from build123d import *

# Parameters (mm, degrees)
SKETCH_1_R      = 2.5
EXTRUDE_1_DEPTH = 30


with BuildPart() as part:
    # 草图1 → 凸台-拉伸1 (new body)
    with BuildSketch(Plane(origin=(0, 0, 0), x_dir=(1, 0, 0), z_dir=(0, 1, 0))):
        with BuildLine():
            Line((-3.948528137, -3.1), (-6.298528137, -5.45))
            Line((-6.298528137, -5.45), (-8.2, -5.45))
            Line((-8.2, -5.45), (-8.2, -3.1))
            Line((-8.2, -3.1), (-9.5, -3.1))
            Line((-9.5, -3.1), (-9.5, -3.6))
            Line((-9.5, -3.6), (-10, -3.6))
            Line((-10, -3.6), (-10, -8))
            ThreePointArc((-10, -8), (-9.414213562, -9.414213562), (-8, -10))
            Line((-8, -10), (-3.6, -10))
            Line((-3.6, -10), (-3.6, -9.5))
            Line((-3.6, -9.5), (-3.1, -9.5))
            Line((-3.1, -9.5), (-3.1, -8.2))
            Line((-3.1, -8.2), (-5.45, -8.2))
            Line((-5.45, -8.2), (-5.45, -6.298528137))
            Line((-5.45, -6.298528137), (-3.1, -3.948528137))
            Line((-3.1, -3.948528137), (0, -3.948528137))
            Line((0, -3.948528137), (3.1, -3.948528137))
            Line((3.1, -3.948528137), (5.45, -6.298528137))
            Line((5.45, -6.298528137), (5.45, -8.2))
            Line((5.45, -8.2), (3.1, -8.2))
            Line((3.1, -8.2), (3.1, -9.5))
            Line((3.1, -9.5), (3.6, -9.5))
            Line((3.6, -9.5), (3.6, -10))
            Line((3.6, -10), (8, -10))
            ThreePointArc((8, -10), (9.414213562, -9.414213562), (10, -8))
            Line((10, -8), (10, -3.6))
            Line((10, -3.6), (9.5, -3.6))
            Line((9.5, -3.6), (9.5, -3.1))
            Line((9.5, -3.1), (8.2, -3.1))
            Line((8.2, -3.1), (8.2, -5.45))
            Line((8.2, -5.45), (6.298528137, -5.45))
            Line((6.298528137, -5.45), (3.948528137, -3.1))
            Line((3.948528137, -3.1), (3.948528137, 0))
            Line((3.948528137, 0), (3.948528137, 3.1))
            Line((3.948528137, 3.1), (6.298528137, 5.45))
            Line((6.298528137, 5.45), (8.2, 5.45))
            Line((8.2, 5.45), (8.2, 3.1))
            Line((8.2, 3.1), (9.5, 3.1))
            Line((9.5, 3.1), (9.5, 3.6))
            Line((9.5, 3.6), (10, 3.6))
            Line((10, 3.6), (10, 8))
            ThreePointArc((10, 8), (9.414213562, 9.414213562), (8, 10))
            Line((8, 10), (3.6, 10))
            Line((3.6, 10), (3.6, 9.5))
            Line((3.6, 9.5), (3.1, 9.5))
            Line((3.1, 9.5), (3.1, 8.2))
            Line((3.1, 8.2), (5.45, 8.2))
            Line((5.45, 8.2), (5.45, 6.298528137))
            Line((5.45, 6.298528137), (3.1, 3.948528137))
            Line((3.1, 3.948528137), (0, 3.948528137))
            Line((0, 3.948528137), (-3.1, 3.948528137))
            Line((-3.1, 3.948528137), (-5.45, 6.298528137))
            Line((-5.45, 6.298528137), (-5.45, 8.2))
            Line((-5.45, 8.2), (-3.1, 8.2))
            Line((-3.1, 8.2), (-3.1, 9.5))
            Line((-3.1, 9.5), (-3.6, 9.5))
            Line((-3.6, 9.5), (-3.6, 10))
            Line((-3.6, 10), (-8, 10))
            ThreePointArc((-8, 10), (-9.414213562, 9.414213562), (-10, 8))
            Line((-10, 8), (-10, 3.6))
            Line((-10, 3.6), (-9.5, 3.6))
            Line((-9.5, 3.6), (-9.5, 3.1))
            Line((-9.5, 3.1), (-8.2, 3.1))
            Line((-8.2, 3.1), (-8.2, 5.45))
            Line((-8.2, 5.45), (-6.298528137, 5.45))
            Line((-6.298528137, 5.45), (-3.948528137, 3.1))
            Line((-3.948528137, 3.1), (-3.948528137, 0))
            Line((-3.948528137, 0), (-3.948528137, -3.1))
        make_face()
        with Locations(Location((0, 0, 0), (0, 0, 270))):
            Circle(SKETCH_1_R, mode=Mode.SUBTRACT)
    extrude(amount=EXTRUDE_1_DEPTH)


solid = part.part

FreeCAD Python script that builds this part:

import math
import FreeCAD as App
import Part
import Sketcher

doc = App.newDocument("Part")
params = doc.addObject("Spreadsheet::Sheet", "Params")
for row, (alias, value) in enumerate([
    ("sketch1_diameter", "5 mm"),
    ("sketch1_radius", "2 mm"),
    ("sketch1_width", "1.3 mm"),
    ("sketch1_width2", "0.5 mm"),
    ("sketch1_width3", "4.4 mm"),
    ("pad1_length", "30 mm"),
], start=1):
    params.set(f"A{row}", alias)
    params.set(f"B{row}", "=" + value)
    params.setAlias(f"B{row}", alias)

body = doc.addObject("PartDesign::Body", "Body")

# Sketch on XZ plane
sketch1 = body.newObject("Sketcher::SketchObject", "Sketch")
sketch1.AttachmentSupport = (doc.getObject("XZ_Plane"), [""])
sketch1.MapMode = "FlatFace"
sketch1.addGeometry(Part.LineSegment(App.Vector(-3.9, 3.1, 0), App.Vector(-6.3, 5.5, 0)), False)
sketch1.addGeometry(Part.LineSegment(App.Vector(-6.3, 5.5, 0), App.Vector(-8.2, 5.5, 0)), False)
sketch1.addGeometry(Part.LineSegment(App.Vector(-8.2, 5.5, 0), App.Vector(-8.2, 3.1, 0)), False)
sketch1.addGeometry(Part.LineSegment(App.Vector(-8.2, 3.1, 0), App.Vector(-9.5, 3.1, 0)), False)
sketch1.addGeometry(Part.LineSegment(App.Vector(-9.5, 3.1, 0), App.Vector(-9.5, 3.6, 0)), False)
sketch1.addGeometry(Part.LineSegment(App.Vector(-9.5, 3.6, 0), App.Vector(-10, 3.6, 0)), False)
sketch1.addGeometry(Part.LineSegment(App.Vector(-10, 3.6, 0), App.Vector(-10, 8, 0)), False)
sketch1.addGeometry(Part.ArcOfCircle(Part.Circle(App.Vector(-8, 8, 0), App.Vector(0, 0, 1), 2), math.radians(90), math.radians(180)), False)
sketch1.addGeometry(Part.LineSegment(App.Vector(-8, 10, 0), App.Vector(-3.6, 10, 0)), False)
sketch1.addGeometry(Part.LineSegment(App.Vector(-3.6, 10, 0), App.Vector(-3.6, 9.5, 0)), False)
sketch1.addGeometry(Part.LineSegment(App.Vector(-3.6, 9.5, 0), App.Vector(-3.1, 9.5, 0)), False)
sketch1.addGeometry(Part.LineSegment(App.Vector(-3.1, 9.5, 0), App.Vector(-3.1, 8.2, 0)), False)
sketch1.addGeometry(Part.LineSegment(App.Vector(-3.1, 8.2, 0), App.Vector(-5.5, 8.2, 0)), False)
sketch1.addGeometry(Part.LineSegment(App.Vector(-5.5, 8.2, 0), App.Vector(-5.5, 6.3, 0)), False)
sketch1.addGeometry(Part.LineSegment(App.Vector(-5.5, 6.3, 0), App.Vector(-3.1, 3.9, 0)), False)
sketch1.addGeometry(Part.LineSegment(App.Vector(-3.1, 3.9, 0), App.Vector(3.1, 3.9, 0)), False)
sketch1.addGeometry(Part.LineSegment(App.Vector(3.1, 3.9, 0), App.Vector(5.5, 6.3, 0)), False)
sketch1.addGeometry(Part.LineSegment(App.Vector(5.5, 6.3, 0), App.Vector(5.5, 8.2, 0)), False)
sketch1.addGeometry(Part.LineSegment(App.Vector(5.5, 8.2, 0), App.Vector(3.1, 8.2, 0)), False)
sketch1.addGeometry(Part.LineSegment(App.Vector(3.1, 8.2, 0), App.Vector(3.1, 9.5, 0)), False)
sketch1.addGeometry(Part.LineSegment(App.Vector(3.1, 9.5, 0), App.Vector(3.6, 9.5, 0)), False)
sketch1.addGeometry(Part.LineSegment(App.Vector(3.6, 9.5, 0), App.Vector(3.6, 10, 0)), False)
sketch1.addGeometry(Part.LineSegment(App.Vector(3.6, 10, 0), App.Vector(8, 10, 0)), False)
sketch1.addGeometry(Part.ArcOfCircle(Part.Circle(App.Vector(8, 8, 0), App.Vector(0, 0, 1), 2), math.radians(0), math.radians(90)), False)
sketch1.addGeometry(Part.LineSegment(App.Vector(10, 8, 0), App.Vector(10, 3.6, 0)), False)
sketch1.addGeometry(Part.LineSegment(App.Vector(10, 3.6, 0), App.Vector(9.5, 3.6, 0)), False)
sketch1.addGeometry(Part.LineSegment(App.Vector(9.5, 3.6, 0), App.Vector(9.5, 3.1, 0)), False)
sketch1.addGeometry(Part.LineSegment(App.Vector(9.5, 3.1, 0), App.Vector(8.2, 3.1, 0)), False)
sketch1.addGeometry(Part.LineSegment(App.Vector(8.2, 3.1, 0), App.Vector(8.2, 5.5, 0)), False)
sketch1.addGeometry(Part.LineSegment(App.Vector(8.2, 5.5, 0), App.Vector(6.3, 5.5, 0)), False)
sketch1.addGeometry(Part.LineSegment(App.Vector(6.3, 5.5, 0), App.Vector(3.9, 3.1, 0)), False)
sketch1.addGeometry(Part.LineSegment(App.Vector(3.9, 3.1, 0), App.Vector(3.9, -3.1, 0)), False)
sketch1.addGeometry(Part.LineSegment(App.Vector(3.9, -3.1, 0), App.Vector(6.3, -5.5, 0)), False)
sketch1.addGeometry(Part.LineSegment(App.Vector(6.3, -5.5, 0), App.Vector(8.2, -5.5, 0)), False)
sketch1.addGeometry(Part.LineSegment(App.Vector(8.2, -5.5, 0), App.Vector(8.2, -3.1, 0)), False)
sketch1.addGeometry(Part.LineSegment(App.Vector(8.2, -3.1, 0), App.Vector(9.5, -3.1, 0)), False)
sketch1.addGeometry(Part.LineSegment(App.Vector(9.5, -3.1, 0), App.Vector(9.5, -3.6, 0)), False)
sketch1.addGeometry(Part.LineSegment(App.Vector(9.5, -3.6, 0), App.Vector(10, -3.6, 0)), False)
sketch1.addGeometry(Part.LineSegment(App.Vector(10, -3.6, 0), App.Vector(10, -8, 0)), False)
sketch1.addGeometry(Part.ArcOfCircle(Part.Circle(App.Vector(8, -8, 0), App.Vector(0, 0, 1), 2), math.radians(-90), math.radians(0)), False)
sketch1.addGeometry(Part.LineSegment(App.Vector(8, -10, 0), App.Vector(3.6, -10, 0)), False)
sketch1.addGeometry(Part.LineSegment(App.Vector(3.6, -10, 0), App.Vector(3.6, -9.5, 0)), False)
sketch1.addGeometry(Part.LineSegment(App.Vector(3.6, -9.5, 0), App.Vector(3.1, -9.5, 0)), False)
sketch1.addGeometry(Part.LineSegment(App.Vector(3.1, -9.5, 0), App.Vector(3.1, -8.2, 0)), False)
sketch1.addGeometry(Part.LineSegment(App.Vector(3.1, -8.2, 0), App.Vector(5.5, -8.2, 0)), False)
sketch1.addGeometry(Part.LineSegment(App.Vector(5.5, -8.2, 0), App.Vector(5.5, -6.3, 0)), False)
sketch1.addGeometry(Part.LineSegment(App.Vector(5.5, -6.3, 0), App.Vector(3.1, -3.9, 0)), False)
sketch1.addGeometry(Part.LineSegment(App.Vector(3.1, -3.9, 0), App.Vector(-3.1, -3.9, 0)), False)
sketch1.addGeometry(Part.LineSegment(App.Vector(-3.1, -3.9, 0), App.Vector(-5.5, -6.3, 0)), False)
sketch1.addGeometry(Part.LineSegment(App.Vector(-5.5, -6.3, 0), App.Vector(-5.5, -8.2, 0)), False)
sketch1.addGeometry(Part.LineSegment(App.Vector(-5.5, -8.2, 0), App.Vector(-3.1, -8.2, 0)), False)
sketch1.addGeometry(Part.LineSegment(App.Vector(-3.1, -8.2, 0), App.Vector(-3.1, -9.5, 0)), False)
sketch1.addGeometry(Part.LineSegment(App.Vector(-3.1, -9.5, 0), App.Vector(-3.6, -9.5, 0)), False)
sketch1.addGeometry(Part.LineSegment(App.Vector(-3.6, -9.5, 0), App.Vector(-3.6, -10, 0)), False)
sketch1.addGeometry(Part.LineSegment(App.Vector(-3.6, -10, 0), App.Vector(-8, -10, 0)), False)
sketch1.addGeometry(Part.ArcOfCircle(Part.Circle(App.Vector(-8, -8, 0), App.Vector(0, 0, 1), 2), math.radians(-180), math.radians(-90)), False)
sketch1.addGeometry(Part.LineSegment(App.Vector(-10, -8, 0), App.Vector(-10, -3.6, 0)), False)
sketch1.addGeometry(Part.LineSegment(App.Vector(-10, -3.6, 0), App.Vector(-9.5, -3.6, 0)), False)
sketch1.addGeometry(Part.LineSegment(App.Vector(-9.5, -3.6, 0), App.Vector(-9.5, -3.1, 0)), False)
sketch1.addGeometry(Part.LineSegment(App.Vector(-9.5, -3.1, 0), App.Vector(-8.2, -3.1, 0)), False)
sketch1.addGeometry(Part.LineSegment(App.Vector(-8.2, -3.1, 0), App.Vector(-8.2, -5.5, 0)), False)
sketch1.addGeometry(Part.LineSegment(App.Vector(-8.2, -5.5, 0), App.Vector(-6.3, -5.5, 0)), False)
sketch1.addGeometry(Part.LineSegment(App.Vector(-6.3, -5.5, 0), App.Vector(-3.9, -3.1, 0)), False)
sketch1.addGeometry(Part.LineSegment(App.Vector(-3.9, -3.1, 0), App.Vector(-3.9, 3.1, 0)), False)
sketch1.addGeometry(Part.Circle(App.Vector(0, 0, 0), App.Vector(0, 0, 1), 2.5), False)
sketch1.addConstraint(Sketcher.Constraint("Coincident", 0, 2, 1, 1))
sketch1.addConstraint(Sketcher.Constraint("Coincident", 1, 2, 2, 1))
sketch1.addConstraint(Sketcher.Constraint("Coincident", 2, 2, 3, 1))
sketch1.addConstraint(Sketcher.Constraint("Coincident", 3, 2, 4, 1))
sketch1.addConstraint(Sketcher.Constraint("Coincident", 4, 2, 5, 1))
sketch1.addConstraint(Sketcher.Constraint("Coincident", 5, 2, 6, 1))
sketch1.addConstraint(Sketcher.Constraint("Tangent", 6, 2, 7, 2))
sketch1.addConstraint(Sketcher.Constraint("Tangent", 7, 1, 8, 1))
sketch1.addConstraint(Sketcher.Constraint("Coincident", 8, 2, 9, 1))
sketch1.addConstraint(Sketcher.Constraint("Coincident", 9, 2, 10, 1))
sketch1.addConstraint(Sketcher.Constraint("Coincident", 10, 2, 11, 1))
sketch1.addConstraint(Sketcher.Constraint("Coincident", 11, 2, 12, 1))
sketch1.addConstraint(Sketcher.Constraint("Coincident", 12, 2, 13, 1))
sketch1.addConstraint(Sketcher.Constraint("Coincident", 13, 2, 14, 1))
sketch1.addConstraint(Sketcher.Constraint("Coincident", 14, 2, 15, 1))
sketch1.addConstraint(Sketcher.Constraint("Coincident", 15, 2, 16, 1))
sketch1.addConstraint(Sketcher.Constraint("Coincident", 16, 2, 17, 1))
sketch1.addConstraint(Sketcher.Constraint("Coincident", 17, 2, 18, 1))
sketch1.addConstraint(Sketcher.Constraint("Coincident", 18, 2, 19, 1))
sketch1.addConstraint(Sketcher.Constraint("Coincident", 19, 2, 20, 1))
sketch1.addConstraint(Sketcher.Constraint("Coincident", 20, 2, 21, 1))
sketch1.addConstraint(Sketcher.Constraint("Coincident", 21, 2, 22, 1))
sketch1.addConstraint(Sketcher.Constraint("Tangent", 22, 2, 23, 2))
sketch1.addConstraint(Sketcher.Constraint("Tangent", 23, 1, 24, 1))
sketch1.addConstraint(Sketcher.Constraint("Coincident", 24, 2, 25, 1))
sketch1.addConstraint(Sketcher.Constraint("Coincident", 25, 2, 26, 1))
sketch1.addConstraint(Sketcher.Constraint("Coincident", 26, 2, 27, 1))
sketch1.addConstraint(Sketcher.Constraint("Coincident", 27, 2, 28, 1))
sketch1.addConstraint(Sketcher.Constraint("Coincident", 28, 2, 29, 1))
sketch1.addConstraint(Sketcher.Constraint("Coincident", 29, 2, 30, 1))
sketch1.addConstraint(Sketcher.Constraint("Coincident", 30, 2, 31, 1))
sketch1.addConstraint(Sketcher.Constraint("Coincident", 31, 2, 32, 1))
sketch1.addConstraint(Sketcher.Constraint("Coincident", 32, 2, 33, 1))
sketch1.addConstraint(Sketcher.Constraint("Coincident", 33, 2, 34, 1))
sketch1.addConstraint(Sketcher.Constraint("Coincident", 34, 2, 35, 1))
sketch1.addConstraint(Sketcher.Constraint("Coincident", 35, 2, 36, 1))
sketch1.addConstraint(Sketcher.Constraint("Coincident", 36, 2, 37, 1))
sketch1.addConstraint(Sketcher.Constraint("Coincident", 37, 2, 38, 1))
sketch1.addConstraint(Sketcher.Constraint("Tangent", 38, 2, 39, 2))
sketch1.addConstraint(Sketcher.Constraint("Tangent", 39, 1, 40, 1))
sketch1.addConstraint(Sketcher.Constraint("Coincident", 40, 2, 41, 1))
sketch1.addConstraint(Sketcher.Constraint("Coincident", 41, 2, 42, 1))
sketch1.addConstraint(Sketcher.Constraint("Coincident", 42, 2, 43, 1))
sketch1.addConstraint(Sketcher.Constraint("Coincident", 43, 2, 44, 1))
sketch1.addConstraint(Sketcher.Constraint("Coincident", 44, 2, 45, 1))
sketch1.addConstraint(Sketcher.Constraint("Coincident", 45, 2, 46, 1))
sketch1.addConstraint(Sketcher.Constraint("Coincident", 46, 2, 47, 1))
sketch1.addConstraint(Sketcher.Constraint("Coincident", 47, 2, 48, 1))
sketch1.addConstraint(Sketcher.Constraint("Coincident", 48, 2, 49, 1))
sketch1.addConstraint(Sketcher.Constraint("Coincident", 49, 2, 50, 1))
sketch1.addConstraint(Sketcher.Constraint("Coincident", 50, 2, 51, 1))
sketch1.addConstraint(Sketcher.Constraint("Coincident", 51, 2, 52, 1))
sketch1.addConstraint(Sketcher.Constraint("Coincident", 52, 2, 53, 1))
sketch1.addConstraint(Sketcher.Constraint("Coincident", 53, 2, 54, 1))
sketch1.addConstraint(Sketcher.Constraint("Tangent", 54, 2, 55, 2))
sketch1.addConstraint(Sketcher.Constraint("Tangent", 55, 1, 56, 1))
sketch1.addConstraint(Sketcher.Constraint("Coincident", 56, 2, 57, 1))
sketch1.addConstraint(Sketcher.Constraint("Coincident", 57, 2, 58, 1))
sketch1.addConstraint(Sketcher.Constraint("Coincident", 58, 2, 59, 1))
sketch1.addConstraint(Sketcher.Constraint("Coincident", 59, 2, 60, 1))
sketch1.addConstraint(Sketcher.Constraint("Coincident", 60, 2, 61, 1))
sketch1.addConstraint(Sketcher.Constraint("Coincident", 61, 2, 62, 1))
sketch1.addConstraint(Sketcher.Constraint("Coincident", 62, 2, 63, 1))
sketch1.addConstraint(Sketcher.Constraint("Coincident", 63, 2, 0, 1))
sketch1.addConstraint(Sketcher.Constraint("Horizontal", 1))
sketch1.addConstraint(Sketcher.Constraint("Vertical", 2))
sketch1.addConstraint(Sketcher.Constraint("Horizontal", 3))
sketch1.addConstraint(Sketcher.Constraint("Vertical", 4))
sketch1.addConstraint(Sketcher.Constraint("Horizontal", 5))
sketch1.addConstraint(Sketcher.Constraint("Vertical", 6))
sketch1.addConstraint(Sketcher.Constraint("Horizontal", 8))
sketch1.addConstraint(Sketcher.Constraint("Vertical", 9))
sketch1.addConstraint(Sketcher.Constraint("Horizontal", 10))
sketch1.addConstraint(Sketcher.Constraint("Vertical", 11))
sketch1.addConstraint(Sketcher.Constraint("Horizontal", 12))
sketch1.addConstraint(Sketcher.Constraint("Vertical", 13))
sketch1.addConstraint(Sketcher.Constraint("Horizontal", 15))
sketch1.addConstraint(Sketcher.Constraint("Vertical", 17))
sketch1.addConstraint(Sketcher.Constraint("Horizontal", 18))
sketch1.addConstraint(Sketcher.Constraint("Vertical", 19))
sketch1.addConstraint(Sketcher.Constraint("Horizontal", 20))
sketch1.addConstraint(Sketcher.Constraint("Vertical", 21))
sketch1.addConstraint(Sketcher.Constraint("Horizontal", 22))
sketch1.addConstraint(Sketcher.Constraint("Vertical", 24))
sketch1.addConstraint(Sketcher.Constraint("Horizontal", 25))
sketch1.addConstraint(Sketcher.Constraint("Vertical", 26))
sketch1.addConstraint(Sketcher.Constraint("Horizontal", 27))
sketch1.addConstraint(Sketcher.Constraint("Vertical", 28))
sketch1.addConstraint(Sketcher.Constraint("Horizontal", 29))
sketch1.addConstraint(Sketcher.Constraint("Vertical", 31))
sketch1.addConstraint(Sketcher.Constraint("Horizontal", 33))
sketch1.addConstraint(Sketcher.Constraint("Vertical", 34))
sketch1.addConstraint(Sketcher.Constraint("Horizontal", 35))
sketch1.addConstraint(Sketcher.Constraint("Vertical", 36))
sketch1.addConstraint(Sketcher.Constraint("Horizontal", 37))
sketch1.addConstraint(Sketcher.Constraint("Vertical", 38))
sketch1.addConstraint(Sketcher.Constraint("Horizontal", 40))
sketch1.addConstraint(Sketcher.Constraint("Vertical", 41))
sketch1.addConstraint(Sketcher.Constraint("Horizontal", 42))
sketch1.addConstraint(Sketcher.Constraint("Vertical", 43))
sketch1.addConstraint(Sketcher.Constraint("Horizontal", 44))
sketch1.addConstraint(Sketcher.Constraint("Vertical", 45))
sketch1.addConstraint(Sketcher.Constraint("Horizontal", 47))
sketch1.addConstraint(Sketcher.Constraint("Vertical", 49))
sketch1.addConstraint(Sketcher.Constraint("Horizontal", 50))
sketch1.addConstraint(Sketcher.Constraint("Vertical", 51))
sketch1.addConstraint(Sketcher.Constraint("Horizontal", 52))
sketch1.addConstraint(Sketcher.Constraint("Vertical", 53))
sketch1.addConstraint(Sketcher.Constraint("Horizontal", 54))
sketch1.addConstraint(Sketcher.Constraint("Vertical", 56))
sketch1.addConstraint(Sketcher.Constraint("Horizontal", 57))
sketch1.addConstraint(Sketcher.Constraint("Vertical", 58))
sketch1.addConstraint(Sketcher.Constraint("Horizontal", 59))
sketch1.addConstraint(Sketcher.Constraint("Vertical", 60))
sketch1.addConstraint(Sketcher.Constraint("Horizontal", 61))
sketch1.addConstraint(Sketcher.Constraint("Vertical", 63))
sketch1.addConstraint(Sketcher.Constraint("Coincident", 64, 3, -1, 1))
sketch1.addConstraint(Sketcher.Constraint("Equal", 7, 23))
sketch1.addConstraint(Sketcher.Constraint("Equal", 23, 39))
sketch1.addConstraint(Sketcher.Constraint("Equal", 39, 55))
sketch1.addConstraint(Sketcher.Constraint("Symmetric", 7, 3, 39, 3, -1, 1))
sketch1.addConstraint(Sketcher.Constraint("Symmetric", 23, 3, 55, 3, -1, 1))
sketch1.addConstraint(Sketcher.Constraint("Symmetric", 0, 2, 32, 2, -1, 1))
sketch1.addConstraint(Sketcher.Constraint("Symmetric", 2, 2, 34, 2, -1, 1))
sketch1.addConstraint(Sketcher.Constraint("Symmetric", 4, 2, 36, 2, -1, 1))
sketch1.addConstraint(Sketcher.Constraint("Symmetric", 9, 2, 41, 2, -1, 1))
sketch1.addConstraint(Sketcher.Constraint("Symmetric", 11, 2, 43, 2, -1, 1))
sketch1.addConstraint(Sketcher.Constraint("Symmetric", 13, 2, 45, 2, -1, 1))
sketch1.addConstraint(Sketcher.Constraint("Symmetric", 14, 2, 46, 2, -1, 1))
sketch1.addConstraint(Sketcher.Constraint("Symmetric", 16, 2, 48, 2, -1, 1))
sketch1.addConstraint(Sketcher.Constraint("Symmetric", 18, 2, 50, 2, -1, 1))
sketch1.addConstraint(Sketcher.Constraint("Symmetric", 20, 2, 52, 2, -1, 1))
sketch1.addConstraint(Sketcher.Constraint("Symmetric", 25, 2, 57, 2, -1, 1))
sketch1.addConstraint(Sketcher.Constraint("Symmetric", 27, 2, 59, 2, -1, 1))
sketch1.addConstraint(Sketcher.Constraint("Symmetric", 29, 2, 61, 2, -1, 1))
sketch1.addConstraint(Sketcher.Constraint("Symmetric", 30, 2, 62, 2, -1, 1))
sketch1.addConstraint(Sketcher.Constraint("Symmetric", 7, 3, 23, 3, -2))
sketch1.addConstraint(Sketcher.Constraint("Symmetric", 13, 2, 16, 2, -2))
sketch1.addConstraint(Sketcher.Constraint("Symmetric", 11, 2, 18, 2, -2))
sketch1.addConstraint(Sketcher.Constraint("Symmetric", 9, 2, 20, 2, -2))
sketch1.addConstraint(Sketcher.Constraint("Symmetric", 4, 2, 25, 2, -2))
sketch1.addConstraint(Sketcher.Constraint("Symmetric", 2, 2, 27, 2, -2))
sketch1.addConstraint(Sketcher.Constraint("Symmetric", 0, 2, 29, 2, -2))
sketch1.addConstraint(Sketcher.Constraint("Parallel", 0, 14))
sketch1.addConstraint(Sketcher.Constraint("Perpendicular", 14, 16))
sketch1.addConstraint(Sketcher.Constraint("Parallel", 16, 30))
sketch1.addConstraint(Sketcher.Constraint("Perpendicular", 30, 32))
sketch1.addConstraint(Sketcher.Constraint("Perpendicular", 46, 48))
sketch1.addConstraint(Sketcher.Constraint("Horizontal", 27, 2, 30, 2))
sketch1.addConstraint(Sketcher.Constraint("Horizontal", 31, 2, 34, 2))
sketch1.addConstraint(Sketcher.Constraint("Vertical", 11, 2, 14, 2))
sketch1.addConstraint(Sketcher.Constraint("Equal", 5, 10))
sketch1.addConstraint(Sketcher.Constraint("Equal", 50, 2))
sketch1.addConstraint(Sketcher.Constraint("Equal", 57, 4))
sketch1.addConstraint(Sketcher.Constraint("Equal", 54, 6))
sketch1.addConstraint(Sketcher.Constraint("Equal", 4, 9))
sketch1.addConstraint(Sketcher.Constraint("Equal", 59, 11))
sketch1.addConstraint(Sketcher.Constraint("Equal", 61, 13))
sketch1.addConstraint(Sketcher.Constraint("Equal", 47, 31))
sketch1.addConstraint(Sketcher.Constraint("Diameter", 64, 5.0))
sketch1.addConstraint(Sketcher.Constraint("Radius", 7, 2.0))
sketch1.addConstraint(Sketcher.Constraint("DistanceX", 3, 2, 3, 1, 1.3))
sketch1.addConstraint(Sketcher.Constraint("DistanceX", 5, 2, 5, 1, 0.5))
sketch1.addConstraint(Sketcher.Constraint("DistanceX", 8, 1, 8, 2, 4.4))
sketch1.addConstraint(Sketcher.Constraint("DistanceX", 15, 1, 15, 2, 6.2))
sketch1.addConstraint(Sketcher.Constraint("DistanceX", 12, 2, 12, 1, 2.35))
sketch1.addConstraint(Sketcher.Constraint("DistanceX", 1, 2, 1, 1, 1.901472))
sketch1.setExpression("Constraints[159]", "Params.sketch1_diameter")
sketch1.setExpression("Constraints[160]", "Params.sketch1_radius")
sketch1.setExpression("Constraints[161]", "Params.sketch1_width")
sketch1.setExpression("Constraints[162]", "Params.sketch1_width2")
sketch1.setExpression("Constraints[163]", "Params.sketch1_width3")
pad1 = body.newObject("PartDesign::Pad", "Pad")
pad1.Profile = sketch1
pad1.setExpression("Length", "Params.pad1_length")
pad1.Reversed = True

doc.recompute()
